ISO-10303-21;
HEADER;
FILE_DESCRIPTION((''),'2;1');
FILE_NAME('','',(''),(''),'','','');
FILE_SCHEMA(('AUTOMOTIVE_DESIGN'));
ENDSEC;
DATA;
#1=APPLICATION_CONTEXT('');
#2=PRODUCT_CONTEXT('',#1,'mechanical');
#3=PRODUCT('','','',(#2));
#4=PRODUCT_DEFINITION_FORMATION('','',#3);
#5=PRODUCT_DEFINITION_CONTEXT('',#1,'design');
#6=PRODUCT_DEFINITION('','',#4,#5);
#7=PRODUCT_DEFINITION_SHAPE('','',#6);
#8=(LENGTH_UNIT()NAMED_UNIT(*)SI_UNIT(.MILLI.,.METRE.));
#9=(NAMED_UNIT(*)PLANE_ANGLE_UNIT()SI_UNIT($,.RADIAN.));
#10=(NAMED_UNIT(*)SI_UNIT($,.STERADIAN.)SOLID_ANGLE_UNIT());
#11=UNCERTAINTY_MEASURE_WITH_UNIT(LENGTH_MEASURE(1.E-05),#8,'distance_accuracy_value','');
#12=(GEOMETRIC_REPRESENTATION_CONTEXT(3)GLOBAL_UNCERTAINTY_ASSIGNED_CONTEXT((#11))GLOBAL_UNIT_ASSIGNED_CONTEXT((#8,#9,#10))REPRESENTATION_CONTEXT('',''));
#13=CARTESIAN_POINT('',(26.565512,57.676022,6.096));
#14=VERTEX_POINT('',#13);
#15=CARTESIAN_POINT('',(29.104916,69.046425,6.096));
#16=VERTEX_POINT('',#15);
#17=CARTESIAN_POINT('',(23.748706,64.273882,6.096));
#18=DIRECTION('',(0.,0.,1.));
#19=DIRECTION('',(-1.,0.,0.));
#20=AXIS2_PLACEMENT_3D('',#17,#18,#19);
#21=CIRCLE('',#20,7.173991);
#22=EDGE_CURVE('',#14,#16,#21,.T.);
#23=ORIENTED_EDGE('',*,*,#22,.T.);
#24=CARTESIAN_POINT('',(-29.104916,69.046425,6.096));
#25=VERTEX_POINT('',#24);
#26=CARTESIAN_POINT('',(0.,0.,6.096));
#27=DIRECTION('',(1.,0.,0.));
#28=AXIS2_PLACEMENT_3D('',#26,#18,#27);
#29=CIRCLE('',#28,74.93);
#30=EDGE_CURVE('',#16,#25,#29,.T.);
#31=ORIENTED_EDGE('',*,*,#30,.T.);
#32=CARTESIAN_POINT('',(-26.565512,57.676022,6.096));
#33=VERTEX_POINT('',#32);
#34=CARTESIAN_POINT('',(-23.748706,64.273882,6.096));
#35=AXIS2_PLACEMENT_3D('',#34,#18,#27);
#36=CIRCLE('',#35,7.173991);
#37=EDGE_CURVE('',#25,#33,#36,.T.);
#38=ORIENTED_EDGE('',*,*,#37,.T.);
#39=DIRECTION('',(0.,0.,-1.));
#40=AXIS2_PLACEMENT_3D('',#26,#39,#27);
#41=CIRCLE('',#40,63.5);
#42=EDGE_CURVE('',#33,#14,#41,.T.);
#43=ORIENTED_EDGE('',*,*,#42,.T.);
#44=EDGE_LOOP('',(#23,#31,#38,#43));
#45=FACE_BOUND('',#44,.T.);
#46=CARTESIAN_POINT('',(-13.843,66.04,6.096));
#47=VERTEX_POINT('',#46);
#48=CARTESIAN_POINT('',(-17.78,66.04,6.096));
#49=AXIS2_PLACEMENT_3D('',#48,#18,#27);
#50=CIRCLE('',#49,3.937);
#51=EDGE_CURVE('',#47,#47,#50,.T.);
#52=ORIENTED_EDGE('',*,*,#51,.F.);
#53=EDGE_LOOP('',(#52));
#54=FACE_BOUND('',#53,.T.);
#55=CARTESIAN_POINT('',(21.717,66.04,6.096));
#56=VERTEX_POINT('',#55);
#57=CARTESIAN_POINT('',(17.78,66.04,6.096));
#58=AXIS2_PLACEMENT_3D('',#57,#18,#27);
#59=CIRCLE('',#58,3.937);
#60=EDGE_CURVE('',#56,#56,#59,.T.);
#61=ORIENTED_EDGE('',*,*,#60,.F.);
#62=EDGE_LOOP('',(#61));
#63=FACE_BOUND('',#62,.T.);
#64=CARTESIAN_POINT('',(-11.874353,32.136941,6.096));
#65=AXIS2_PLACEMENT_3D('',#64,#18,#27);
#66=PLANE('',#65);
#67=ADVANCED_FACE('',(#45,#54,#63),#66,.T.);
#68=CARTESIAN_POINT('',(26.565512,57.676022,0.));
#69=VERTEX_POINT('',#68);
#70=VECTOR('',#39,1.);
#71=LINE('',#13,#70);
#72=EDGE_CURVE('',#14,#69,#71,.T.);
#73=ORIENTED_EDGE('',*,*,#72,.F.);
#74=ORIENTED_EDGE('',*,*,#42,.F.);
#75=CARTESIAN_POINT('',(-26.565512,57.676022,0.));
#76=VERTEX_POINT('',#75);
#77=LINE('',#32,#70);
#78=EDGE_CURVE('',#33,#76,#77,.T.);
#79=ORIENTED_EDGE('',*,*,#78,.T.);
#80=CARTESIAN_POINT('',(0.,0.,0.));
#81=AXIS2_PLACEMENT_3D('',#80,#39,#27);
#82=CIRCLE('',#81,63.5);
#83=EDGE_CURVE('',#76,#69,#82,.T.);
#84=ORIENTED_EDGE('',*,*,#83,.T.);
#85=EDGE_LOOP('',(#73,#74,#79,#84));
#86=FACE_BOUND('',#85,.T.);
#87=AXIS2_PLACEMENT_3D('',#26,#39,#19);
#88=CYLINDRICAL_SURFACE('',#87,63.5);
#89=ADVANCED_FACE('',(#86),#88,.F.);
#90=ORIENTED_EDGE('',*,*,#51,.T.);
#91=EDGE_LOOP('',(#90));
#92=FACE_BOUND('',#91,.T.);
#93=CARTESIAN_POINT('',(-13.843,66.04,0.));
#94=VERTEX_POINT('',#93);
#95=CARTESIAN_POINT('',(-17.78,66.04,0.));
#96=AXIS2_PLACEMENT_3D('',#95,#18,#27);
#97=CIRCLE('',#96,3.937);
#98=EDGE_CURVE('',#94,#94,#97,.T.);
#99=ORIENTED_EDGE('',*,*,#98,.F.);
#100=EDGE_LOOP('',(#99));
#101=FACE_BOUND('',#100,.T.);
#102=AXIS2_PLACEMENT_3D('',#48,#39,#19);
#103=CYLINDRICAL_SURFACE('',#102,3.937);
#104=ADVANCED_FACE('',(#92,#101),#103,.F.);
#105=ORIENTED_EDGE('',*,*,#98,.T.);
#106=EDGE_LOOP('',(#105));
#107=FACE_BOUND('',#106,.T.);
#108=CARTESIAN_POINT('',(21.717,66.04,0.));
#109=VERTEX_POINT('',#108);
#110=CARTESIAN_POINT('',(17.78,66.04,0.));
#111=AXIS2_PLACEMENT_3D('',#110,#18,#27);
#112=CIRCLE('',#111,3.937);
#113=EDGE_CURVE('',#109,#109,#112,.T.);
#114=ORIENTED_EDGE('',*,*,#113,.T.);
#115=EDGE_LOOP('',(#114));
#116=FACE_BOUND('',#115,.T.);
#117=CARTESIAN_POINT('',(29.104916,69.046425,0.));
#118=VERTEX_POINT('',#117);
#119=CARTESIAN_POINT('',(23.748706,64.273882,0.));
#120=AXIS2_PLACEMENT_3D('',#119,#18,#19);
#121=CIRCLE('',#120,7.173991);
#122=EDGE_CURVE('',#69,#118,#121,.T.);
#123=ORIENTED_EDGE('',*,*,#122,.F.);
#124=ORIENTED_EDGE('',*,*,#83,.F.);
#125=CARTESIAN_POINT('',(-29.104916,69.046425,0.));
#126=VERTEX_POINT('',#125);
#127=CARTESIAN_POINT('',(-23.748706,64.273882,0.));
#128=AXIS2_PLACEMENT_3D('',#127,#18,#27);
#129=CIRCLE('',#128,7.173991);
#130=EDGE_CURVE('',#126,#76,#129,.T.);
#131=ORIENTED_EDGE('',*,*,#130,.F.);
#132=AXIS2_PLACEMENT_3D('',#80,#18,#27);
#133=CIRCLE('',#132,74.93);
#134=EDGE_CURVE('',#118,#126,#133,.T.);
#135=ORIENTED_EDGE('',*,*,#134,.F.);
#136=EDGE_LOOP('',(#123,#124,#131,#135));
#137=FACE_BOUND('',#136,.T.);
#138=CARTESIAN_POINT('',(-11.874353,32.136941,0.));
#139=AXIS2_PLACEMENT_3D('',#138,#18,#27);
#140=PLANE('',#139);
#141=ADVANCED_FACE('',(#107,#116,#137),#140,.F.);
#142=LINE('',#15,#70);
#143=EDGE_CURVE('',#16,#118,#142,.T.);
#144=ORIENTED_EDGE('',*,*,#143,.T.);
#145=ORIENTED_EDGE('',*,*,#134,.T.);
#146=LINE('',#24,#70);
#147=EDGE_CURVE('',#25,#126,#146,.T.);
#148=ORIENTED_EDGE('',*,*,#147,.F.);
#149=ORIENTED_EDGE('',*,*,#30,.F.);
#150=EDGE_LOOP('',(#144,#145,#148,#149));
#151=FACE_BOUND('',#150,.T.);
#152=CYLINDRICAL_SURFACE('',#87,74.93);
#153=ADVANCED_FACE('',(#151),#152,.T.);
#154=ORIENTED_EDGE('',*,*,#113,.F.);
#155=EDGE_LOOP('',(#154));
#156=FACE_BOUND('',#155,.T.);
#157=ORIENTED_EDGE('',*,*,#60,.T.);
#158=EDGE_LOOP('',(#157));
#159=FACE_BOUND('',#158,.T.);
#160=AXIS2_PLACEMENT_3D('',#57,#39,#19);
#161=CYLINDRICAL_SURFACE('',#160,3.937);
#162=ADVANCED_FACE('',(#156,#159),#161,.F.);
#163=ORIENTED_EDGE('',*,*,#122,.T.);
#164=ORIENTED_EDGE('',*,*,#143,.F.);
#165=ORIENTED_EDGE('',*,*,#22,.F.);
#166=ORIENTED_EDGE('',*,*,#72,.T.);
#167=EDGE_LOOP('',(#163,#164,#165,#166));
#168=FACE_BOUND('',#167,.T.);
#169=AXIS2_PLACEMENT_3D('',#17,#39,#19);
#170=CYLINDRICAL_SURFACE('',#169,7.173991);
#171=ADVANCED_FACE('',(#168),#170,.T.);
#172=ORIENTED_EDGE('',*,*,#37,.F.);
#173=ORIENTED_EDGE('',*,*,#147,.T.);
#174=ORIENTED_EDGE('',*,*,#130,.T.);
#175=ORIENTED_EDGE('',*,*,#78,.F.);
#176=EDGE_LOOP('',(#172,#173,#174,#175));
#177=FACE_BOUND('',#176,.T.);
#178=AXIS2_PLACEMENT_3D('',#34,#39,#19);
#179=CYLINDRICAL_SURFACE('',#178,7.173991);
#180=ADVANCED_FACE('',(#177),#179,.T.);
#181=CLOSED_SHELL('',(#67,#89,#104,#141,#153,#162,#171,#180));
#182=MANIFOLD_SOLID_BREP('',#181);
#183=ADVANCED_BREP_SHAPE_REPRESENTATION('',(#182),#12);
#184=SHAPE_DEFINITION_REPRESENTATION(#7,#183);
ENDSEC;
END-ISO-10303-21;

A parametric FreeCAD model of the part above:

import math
import FreeCAD as App
import Part
import Sketcher
from FreeCAD import Vector
Q = App.Units.Quantity

doc = App.newDocument("Part")
body = doc.addObject("PartDesign::Body", "Body")

sketch1 = body.newObject("Sketcher::SketchObject", "Sketch")
sketch1.AttachmentSupport = (doc.getObject("XY_Plane"), [""])
sketch1.MapMode = "FlatFace"
sketch1.addGeometry(Part.ArcOfCircle(Part.Circle(Vector(0, 0, 0), Vector(0, 0, 1), 74.9), math.radians(67), math.radians(113)), False)
sketch1.addGeometry(Part.ArcOfCircle(Part.Circle(Vector(-23.7, 64.3, 0), Vector(0, 0, 1), 7.2), math.radians(138), math.radians(247)), False)
sketch1.addGeometry(Part.ArcOfCircle(Part.Circle(Vector(0, 0, 0), Vector(0, 0, 1), 63.5), math.radians(65), math.radians(115)), False)
sketch1.addGeometry(Part.ArcOfCircle(Part.Circle(Vector(23.7, 64.3, 0), Vector(0, 0, 1), 7.2), math.radians(-67), math.radians(42)), False)
sketch1.addGeometry(Part.Circle(Vector(-17.8, 66, 0), Vector(0, 0, 1), 3.9), False)
sketch1.addGeometry(Part.Circle(Vector(17.8, 66, 0), Vector(0, 0, 1), 3.9), False)
sketch1.addConstraint(Sketcher.Constraint("Coincident", 0, 2, 1, 1))
sketch1.addConstraint(Sketcher.Constraint("Coincident", 1, 2, 2, 2))
sketch1.addConstraint(Sketcher.Constraint("Coincident", 2, 1, 3, 1))
sketch1.addConstraint(Sketcher.Constraint("Coincident", 3, 2, 0, 1))
sketch1.addConstraint(Sketcher.Constraint("Coincident", 0, 3, -1, 1))
sketch1.addConstraint(Sketcher.Constraint("Coincident", 2, 3, -1, 1))
sketch1.addConstraint(Sketcher.Constraint("Equal", 1, 3))
sketch1.addConstraint(Sketcher.Constraint("Equal", 4, 5))
sketch1.addConstraint(Sketcher.Constraint("Symmetric", 1, 3, 3, 3, -2))
sketch1.addConstraint(Sketcher.Constraint("Symmetric", 4, 3, 5, 3, -2))
sketch1.addConstraint(Sketcher.Constraint("Radius", 2, Q("2.5 in")))
sketch1.addConstraint(Sketcher.Constraint("Diameter", 4, Q("0.31 in")))
sketch1.addConstraint(Sketcher.Constraint("Radius", 0, Q("2.95 in")))
sketch1.addConstraint(Sketcher.Constraint("DistanceX", 4, 3, -1, 1, Q("0.7 in")))
sketch1.addConstraint(Sketcher.Constraint("DistanceY", -1, 1, 4, 3, Q("2.6 in")))
sketch1.addConstraint(Sketcher.Constraint("Radius", 1, 7.173991))
sketch1.addConstraint(Sketcher.Constraint("DistanceY", -1, 1, 1, 3, 64.273882))
sketch1.addConstraint(Sketcher.Constraint("DistanceX", 1, 3, 3, 3, 47.497412))
pad1 = body.newObject("PartDesign::Pad", "Pad")
pad1.Profile = sketch1
pad1.Length = Q("0.24 in")

doc.recompute()
